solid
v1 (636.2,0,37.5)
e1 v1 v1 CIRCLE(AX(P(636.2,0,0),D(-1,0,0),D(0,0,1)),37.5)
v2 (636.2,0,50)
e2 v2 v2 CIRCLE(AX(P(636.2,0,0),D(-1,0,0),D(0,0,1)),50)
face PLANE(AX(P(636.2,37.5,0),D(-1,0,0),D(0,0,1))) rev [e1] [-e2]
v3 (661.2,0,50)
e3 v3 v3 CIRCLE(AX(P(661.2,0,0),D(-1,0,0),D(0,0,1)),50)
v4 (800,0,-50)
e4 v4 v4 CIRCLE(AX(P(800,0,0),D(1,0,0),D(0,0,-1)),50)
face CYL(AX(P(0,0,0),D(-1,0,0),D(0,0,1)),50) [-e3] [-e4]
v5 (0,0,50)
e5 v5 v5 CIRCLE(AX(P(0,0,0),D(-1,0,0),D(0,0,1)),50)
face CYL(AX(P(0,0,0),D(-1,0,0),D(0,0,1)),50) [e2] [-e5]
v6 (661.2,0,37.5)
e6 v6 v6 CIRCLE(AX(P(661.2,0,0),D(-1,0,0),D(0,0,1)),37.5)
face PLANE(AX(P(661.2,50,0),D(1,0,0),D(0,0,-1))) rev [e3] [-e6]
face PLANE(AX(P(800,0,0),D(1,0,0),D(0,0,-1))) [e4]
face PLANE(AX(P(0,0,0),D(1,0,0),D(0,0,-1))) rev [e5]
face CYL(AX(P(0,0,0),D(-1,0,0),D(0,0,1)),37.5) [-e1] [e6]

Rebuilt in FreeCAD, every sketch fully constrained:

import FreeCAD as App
import Part
import Sketcher
from FreeCAD import Vector
Q = App.Units.Quantity

doc = App.newDocument("Part")
body = doc.addObject("PartDesign::Body", "Body")

# Sketch on XY plane
sketch1 = doc.addObject("Sketcher::SketchObject", "Sketch")
body.addObject(sketch1)
sketch1.AttachmentSupport = (doc.XY_Plane, [""])
sketch1.MapMode = "FlatFace"
sketch1.addGeometry(Part.LineSegment(Vector(0, 50, 0), Vector(0, 0, 0)), False)
sketch1.addGeometry(Part.LineSegment(Vector(0, 0, 0), Vector(700, 0, 0)), False)
sketch1.addGeometry(Part.LineSegment(Vector(700, 0, 0), Vector(700, 50, 0)), False)
sketch1.addGeometry(Part.LineSegment(Vector(700, 50, 0), Vector(661.2, 50, 0)), False)
sketch1.addGeometry(Part.LineSegment(Vector(661.2, 50, 0), Vector(661.2, 37.5, 0)), False)
sketch1.addGeometry(Part.LineSegment(Vector(661.2, 37.5, 0), Vector(636.2, 37.5, 0)), False)
sketch1.addGeometry(Part.LineSegment(Vector(636.2, 37.5, 0), Vector(636.2, 50, 0)), False)
sketch1.addGeometry(Part.LineSegment(Vector(636.2, 50, 0), Vector(0, 50, 0)), False)
sketch1.addConstraint(Sketcher.Constraint("Coincident", 0, 2, 1, 1))
sketch1.addConstraint(Sketcher.Constraint("Coincident", 1, 2, 2, 1))
sketch1.addConstraint(Sketcher.Constraint("Coincident", 2, 2, 3, 1))
sketch1.addConstraint(Sketcher.Constraint("Coincident", 3, 2, 4, 1))
sketch1.addConstraint(Sketcher.Constraint("Coincident", 4, 2, 5, 1))
sketch1.addConstraint(Sketcher.Constraint("Coincident", 5, 2, 6, 1))
sketch1.addConstraint(Sketcher.Constraint("Coincident", 6, 2, 7, 1))
sketch1.addConstraint(Sketcher.Constraint("Coincident", 7, 2, 0, 1))
sketch1.addConstraint(Sketcher.Constraint("Vertical", 0))
sketch1.addConstraint(Sketcher.Constraint("Horizontal", 1))
sketch1.addConstraint(Sketcher.Constraint("Vertical", 2))
sketch1.addConstraint(Sketcher.Constraint("Horizontal", 3))
sketch1.addConstraint(Sketcher.Constraint("Vertical", 4))
sketch1.addConstraint(Sketcher.Constraint("Horizontal", 5))
sketch1.addConstraint(Sketcher.Constraint("Vertical", 6))
sketch1.addConstraint(Sketcher.Constraint("Horizontal", 7))
sketch1.addConstraint(Sketcher.Constraint("Coincident", 0, 2, -1, 1))
sketch1.addConstraint(Sketcher.Constraint("Horizontal", 3, 2, 6, 2))
sketch1.addConstraint(Sketcher.Constraint("DistanceX", 1, 1, 1, 2, Q("700 mm")))
sketch1.addConstraint(Sketcher.Constraint("DistanceX", 5, 2, 5, 1, Q("25 mm")))
sketch1.addConstraint(Sketcher.Constraint("DistanceY", 0, 2, 0, 1, Q("50 mm")))
sketch1.addConstraint(Sketcher.Constraint("DistanceX", 3, 2, 3, 1, Q("38.8 mm")))
sketch1.addConstraint(Sketcher.Constraint("DistanceY", 4, 2, 4, 1, Q("12.5 mm")))
revolution = doc.addObject("PartDesign::Revolution", "Revolution")
body.addObject(revolution)
revolution.Profile = sketch1
revolution.ReferenceAxis = (sketch1, ["H_Axis"])
revolution.Angle = 360

# Sketch on YZ plane
sketch2 = doc.addObject("Sketcher::SketchObject", "Sketch001")
body.addObject(sketch2)
sketch2.AttachmentSupport = (doc.YZ_Plane, [""])
sketch2.MapMode = "FlatFace"
sketch2.AttachmentOffset = App.Placement(Vector(0, 0, 800), App.Rotation())
sketch2.addGeometry(Part.Circle(Vector(0, 0, 0), Vector(0, 0, 1), 50), False)
sketch2.addConstraint(Sketcher.Constraint("Coincident", 0, 3, -1, 1))
sketch2.addConstraint(Sketcher.Constraint("Diameter", 0, Q("100 mm")))
pad1 = doc.addObject("PartDesign::Pad", "Pad")
body.addObject(pad1)
pad1.Profile = sketch2
pad1.Length = 100
pad1.Reversed = True

doc.recompute()
